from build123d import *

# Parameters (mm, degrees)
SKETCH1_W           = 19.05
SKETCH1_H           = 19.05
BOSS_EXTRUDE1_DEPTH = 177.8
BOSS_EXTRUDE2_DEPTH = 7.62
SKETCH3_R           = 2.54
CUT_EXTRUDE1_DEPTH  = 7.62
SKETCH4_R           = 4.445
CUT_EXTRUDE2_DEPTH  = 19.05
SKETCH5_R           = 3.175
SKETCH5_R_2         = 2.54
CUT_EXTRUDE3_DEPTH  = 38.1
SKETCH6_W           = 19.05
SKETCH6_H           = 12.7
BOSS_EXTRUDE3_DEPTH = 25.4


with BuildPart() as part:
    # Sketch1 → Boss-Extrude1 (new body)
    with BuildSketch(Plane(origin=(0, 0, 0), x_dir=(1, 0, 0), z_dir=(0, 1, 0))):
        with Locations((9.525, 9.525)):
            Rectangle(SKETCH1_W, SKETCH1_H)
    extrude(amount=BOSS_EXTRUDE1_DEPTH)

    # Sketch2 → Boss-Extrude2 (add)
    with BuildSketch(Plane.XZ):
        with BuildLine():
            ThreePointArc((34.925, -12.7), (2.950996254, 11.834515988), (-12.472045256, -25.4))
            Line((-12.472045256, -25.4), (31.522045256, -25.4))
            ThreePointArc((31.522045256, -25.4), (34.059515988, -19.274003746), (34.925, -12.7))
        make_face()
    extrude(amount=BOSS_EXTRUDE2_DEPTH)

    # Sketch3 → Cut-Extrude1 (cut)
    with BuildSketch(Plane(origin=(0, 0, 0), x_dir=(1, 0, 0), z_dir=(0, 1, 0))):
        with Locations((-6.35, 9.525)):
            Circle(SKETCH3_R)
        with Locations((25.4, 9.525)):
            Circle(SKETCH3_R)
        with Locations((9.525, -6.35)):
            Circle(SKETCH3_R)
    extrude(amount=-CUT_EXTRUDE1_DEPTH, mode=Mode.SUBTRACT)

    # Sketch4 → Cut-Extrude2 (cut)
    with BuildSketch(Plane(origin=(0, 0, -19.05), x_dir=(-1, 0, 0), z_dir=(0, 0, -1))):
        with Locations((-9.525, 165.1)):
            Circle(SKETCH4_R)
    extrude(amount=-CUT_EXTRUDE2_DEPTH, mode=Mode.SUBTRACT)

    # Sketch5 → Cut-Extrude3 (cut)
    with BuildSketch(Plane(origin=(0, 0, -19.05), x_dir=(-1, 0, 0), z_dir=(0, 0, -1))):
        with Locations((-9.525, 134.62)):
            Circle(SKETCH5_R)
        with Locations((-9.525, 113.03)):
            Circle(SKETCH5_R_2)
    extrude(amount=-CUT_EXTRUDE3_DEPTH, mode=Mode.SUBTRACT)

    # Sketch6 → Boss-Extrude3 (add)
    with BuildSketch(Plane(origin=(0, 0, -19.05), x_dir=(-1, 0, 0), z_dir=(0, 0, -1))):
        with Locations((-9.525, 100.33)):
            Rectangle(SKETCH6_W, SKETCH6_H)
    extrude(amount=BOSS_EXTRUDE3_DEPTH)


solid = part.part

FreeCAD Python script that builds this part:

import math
import FreeCAD as App
import Part
import Sketcher
Q = App.Units.Quantity

doc = App.newDocument("Part")
body = doc.addObject("PartDesign::Body", "Body")

# Sketch on XZ plane
sketch1 = body.newObject("Sketcher::SketchObject", "Sketch")
sketch1.AttachmentSupport = (doc.getObject("XZ_Plane"), [""])
sketch1.MapMode = "FlatFace"
sketch1.addGeometry([
    Part.LineSegment(App.Vector(0, -19, 0), App.Vector(0, 0, 0)),
    Part.LineSegment(App.Vector(0, 0, 0), App.Vector(19, 0, 0)),
    Part.LineSegment(App.Vector(19, 0, 0), App.Vector(19, -19, 0)),
    Part.LineSegment(App.Vector(19, -19, 0), App.Vector(0, -19, 0)),
], False)
sketch1.addConstraint([
    Sketcher.Constraint("Coincident", 0, 2, 1, 1),
    Sketcher.Constraint("Coincident", 1, 2, 2, 1),
    Sketcher.Constraint("Coincident", 2, 2, 3, 1),
    Sketcher.Constraint("Coincident", 3, 2, 0, 1),
    Sketcher.Constraint("Vertical", 0),
    Sketcher.Constraint("Horizontal", 1),
    Sketcher.Constraint("Vertical", 2),
    Sketcher.Constraint("Horizontal", 3),
    Sketcher.Constraint("Coincident", 0, 2, -1, 1),
    Sketcher.Constraint("Equal", 3, 0),
    Sketcher.Constraint("DistanceX", 1, 1, 1, 2, Q("0.75 in")),
])
pad1 = body.newObject("PartDesign::Pad", "Pad")
pad1.Profile = sketch1
pad1.Length = Q("7 in")
pad1.Reversed = True

# Sketch on XZ plane
sketch2 = body.newObject("Sketcher::SketchObject", "Sketch001")
sketch2.AttachmentSupport = (doc.getObject("XZ_Plane"), [""])
sketch2.MapMode = "FlatFace"
sketch2.addGeometry([
    Part.ArcOfCircle(Part.Circle(App.Vector(10, -13, 0), App.Vector(0, 0, 1), 25), math.radians(0), math.radians(210)),
    Part.LineSegment(App.Vector(-12, -25, 0), App.Vector(32, -25, 0)),
    Part.ArcOfCircle(Part.Circle(App.Vector(10, -13, 0), App.Vector(0, 0, 1), 25), math.radians(-30), math.radians(0)),
], False)
sketch2.addConstraint([
    Sketcher.Constraint("Coincident", 0, 2, 1, 1),
    Sketcher.Constraint("Coincident", 1, 2, 2, 1),
    Sketcher.Constraint("Tangent", 2, 2, 0, 1),
    Sketcher.Constraint("Horizontal", 1),
    Sketcher.Constraint("Equal", 0, 2),
    Sketcher.Constraint("Horizontal", 0, 3, 2, 2),
    Sketcher.Constraint("Radius", 0, Q("1 in")),
    Sketcher.Constraint("DistanceY", 0, 2, -1, 1, Q("1 in")),
    Sketcher.Constraint("DistanceY", 0, 3, -1, 1, Q("0.5 in")),
    Sketcher.Constraint("DistanceX", -1, 1, 0, 3, Q("0.375 in")),
])
pad2 = body.newObject("PartDesign::Pad", "Pad001")
pad2.Profile = sketch2
pad2.Length = Q("0.3 in")

# Sketch on XZ plane
sketch3 = body.newObject("Sketcher::SketchObject", "Sketch002")
sketch3.AttachmentSupport = (doc.getObject("XZ_Plane"), [""])
sketch3.MapMode = "FlatFace"
sketch3.addGeometry([
    Part.Circle(App.Vector(-6.3, -9.5, 0), App.Vector(0, 0, 1), 2.5),
    Part.Circle(App.Vector(25.4, -9.5, 0), App.Vector(0, 0, 1), 2.5),
    Part.Circle(App.Vector(9.5, 6.3, 0), App.Vector(0, 0, 1), 2.5),
], False)
sketch3.addConstraint([
    Sketcher.Constraint("Equal", 0, 1),
    Sketcher.Constraint("Equal", 1, 2),
    Sketcher.Constraint("Horizontal", 0, 3, 1, 3),
    Sketcher.Constraint("Diameter", 0, Q("0.2 in")),
    Sketcher.Constraint("DistanceX", -1, 1, 1, 3, Q("1 in")),
    Sketcher.Constraint("DistanceX", 0, 3, -1, 1, Q("0.25 in")),
    Sketcher.Constraint("DistanceY", -1, 1, 2, 3, Q("0.25 in")),
    Sketcher.Constraint("DistanceY", 0, 3, -1, 1, Q("0.375 in")),
    Sketcher.Constraint("DistanceX", -1, 1, 2, 3, Q("0.375 in")),
])
pocket1 = body.newObject("PartDesign::Pocket", "Pocket")
pocket1.Profile = sketch3
pocket1.Length = Q("0.3 in")
pocket1.Reversed = True

# Sketch on XY plane
sketch4 = body.newObject("Sketcher::SketchObject", "Sketch003")
sketch4.AttachmentSupport = (doc.getObject("XY_Plane"), [""])
sketch4.MapMode = "FlatFace"
sketch4.AttachmentOffset = App.Placement(App.Vector(0, 0, -0.75 * 25.4), App.Rotation())
sketch4.addGeometry(Part.Circle(App.Vector(9.5, 165.1, 0), App.Vector(0, 0, 1), 4.4), False)
sketch4.addConstraint([
    Sketcher.Constraint("Diameter", 0, Q("0.35 in")),
    Sketcher.Constraint("DistanceY", -1, 1, 0, 3, Q("6.5 in")),
    Sketcher.Constraint("DistanceX", -1, 1, 0, 3, Q("0.375 in")),
])
pocket2 = body.newObject("PartDesign::Pocket", "Pocket001")
pocket2.Profile = sketch4
pocket2.Length = Q("0.75 in")
pocket2.Reversed = True

# Sketch on XY plane
sketch5 = body.newObject("Sketcher::SketchObject", "Sketch004")
sketch5.AttachmentSupport = (doc.getObject("XY_Plane"), [""])
sketch5.MapMode = "FlatFace"
sketch5.AttachmentOffset = App.Placement(App.Vector(0, 0, -0.75 * 25.4), App.Rotation())
sketch5.addGeometry([
    Part.Circle(App.Vector(9.5, 134.6, 0), App.Vector(0, 0, 1), 3.2),
    Part.Circle(App.Vector(9.5, 113, 0), App.Vector(0, 0, 1), 2.5),
], False)
sketch5.addConstraint([
    Sketcher.Constraint("Vertical", 0, 3, 1, 3),
    Sketcher.Constraint("Diameter", 1, Q("0.2 in")),
    Sketcher.Constraint("Diameter", 0, Q("0.25 in")),
    Sketcher.Constraint("DistanceY", -1, 1, 0, 3, Q("5.3 in")),
    Sketcher.Constraint("DistanceY", -1, 1, 1, 3, Q("4.45 in")),
    Sketcher.Constraint("DistanceX", -1, 1, 0, 3, Q("0.375 in")),
])
pocket3 = body.newObject("PartDesign::Pocket", "Pocket002")
pocket3.Profile = sketch5
pocket3.Length = Q("1.5 in")
pocket3.Reversed = True

# Sketch on XY plane
sketch6 = body.newObject("Sketcher::SketchObject", "Sketch005")
sketch6.AttachmentSupport = (doc.getObject("XY_Plane"), [""])
sketch6.MapMode = "FlatFace"
sketch6.AttachmentOffset = App.Placement(App.Vector(0, 0, -0.75 * 25.4), App.Rotation())
sketch6.addGeometry([
    Part.LineSegment(App.Vector(19, 107, 0), App.Vector(19, 94, 0)),
    Part.LineSegment(App.Vector(19, 94, 0), App.Vector(0, 94, 0)),
    Part.LineSegment(App.Vector(0, 94, 0), App.Vector(0, 107, 0)),
    Part.LineSegment(App.Vector(0, 107, 0), App.Vector(19, 107, 0)),
], False)
sketch6.addConstraint([
    Sketcher.Constraint("Coincident", 0, 2, 1, 1),
    Sketcher.Constraint("Coincident", 1, 2, 2, 1),
    Sketcher.Constraint("Coincident", 2, 2, 3, 1),
    Sketcher.Constraint("Coincident", 3, 2, 0, 1),
    Sketcher.Constraint("Vertical", 0),
    Sketcher.Constraint("Horizontal", 1),
    Sketcher.Constraint("Vertical", 2),
    Sketcher.Constraint("Horizontal", 3),
    Sketcher.Constraint("PointOnObject", 1, 2, -2),
    Sketcher.Constraint("DistanceY", 0, 2, 0, 1, Q("0.5 in")),
    Sketcher.Constraint("DistanceX", 1, 2, 1, 1, Q("0.75 in")),
    Sketcher.Constraint("DistanceY", -1, 1, 0, 2, Q("3.7 in")),
])
pad3 = body.newObject("PartDesign::Pad", "Pad002")
pad3.Profile = sketch6
pad3.Length = Q("1 in")
pad3.Reversed = True

doc.recompute()
